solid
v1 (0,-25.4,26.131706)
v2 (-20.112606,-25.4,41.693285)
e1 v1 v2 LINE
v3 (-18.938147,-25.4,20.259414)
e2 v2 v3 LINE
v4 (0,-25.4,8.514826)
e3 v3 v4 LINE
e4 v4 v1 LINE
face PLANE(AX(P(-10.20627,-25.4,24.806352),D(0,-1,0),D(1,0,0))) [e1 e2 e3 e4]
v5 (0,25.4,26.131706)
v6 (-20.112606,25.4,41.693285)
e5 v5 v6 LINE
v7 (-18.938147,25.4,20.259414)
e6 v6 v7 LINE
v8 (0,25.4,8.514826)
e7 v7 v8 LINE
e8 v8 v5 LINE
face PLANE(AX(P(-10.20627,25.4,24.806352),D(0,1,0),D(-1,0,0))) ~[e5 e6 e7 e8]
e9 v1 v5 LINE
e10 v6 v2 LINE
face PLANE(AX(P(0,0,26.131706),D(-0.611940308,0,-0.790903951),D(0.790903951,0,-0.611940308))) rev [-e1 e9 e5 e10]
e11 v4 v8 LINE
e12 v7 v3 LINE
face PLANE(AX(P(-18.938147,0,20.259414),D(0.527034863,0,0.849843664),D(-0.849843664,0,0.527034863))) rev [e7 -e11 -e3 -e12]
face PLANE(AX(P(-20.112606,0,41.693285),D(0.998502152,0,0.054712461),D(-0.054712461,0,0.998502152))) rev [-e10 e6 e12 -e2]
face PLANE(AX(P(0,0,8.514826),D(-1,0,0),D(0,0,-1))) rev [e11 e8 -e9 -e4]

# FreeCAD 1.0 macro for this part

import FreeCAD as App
import Part
import Sketcher

V = App.Vector
Q = App.Units.Quantity

doc = App.newDocument("Part")
body = doc.addObject("PartDesign::Body", "Body")

# Sketch on XZ plane
sketch1 = body.newObject("Sketcher::SketchObject", "Sketch")
sketch1.AttachmentSupport = (doc.getObject("XZ_Plane"), [""])
sketch1.MapMode = "FlatFace"
sketch1.addGeometry([
    Part.LineSegment(V(0, 26.131706, 0), V(-20.112606, 41.693285, 0)),
    Part.LineSegment(V(-20.112606, 41.693285, 0), V(-18.938147, 20.259414, 0)),
    Part.LineSegment(V(-18.938147, 20.259414, 0), V(0, 8.514826, 0)),
    Part.LineSegment(V(0, 8.514826, 0), V(0, 26.131706, 0)),
], False)
sketch1.addConstraint([
    Sketcher.Constraint("Coincident", 0, 2, 1, 1),
    Sketcher.Constraint("Coincident", 1, 2, 2, 1),
    Sketcher.Constraint("Coincident", 2, 2, 3, 1),
    Sketcher.Constraint("Coincident", 3, 2, 0, 1),
    Sketcher.Constraint("Vertical", 3),
    Sketcher.Constraint("PointOnObject", 2, 2, -2),
    Sketcher.Constraint("DistanceY", 3, 1, 3, 2, 17.61688),
    Sketcher.Constraint("Distance", 2, 22.284272),
    Sketcher.Constraint("DistanceX", 0, 2, 1, 2, 1.174459),
    Sketcher.Constraint("DistanceY", 1, 2, 0, 2, 21.433871),
    Sketcher.Constraint("DistanceY", 2, 2, 0, 2, 33.178459),
    Sketcher.Constraint("DistanceY", -1, 1, 0, 2, 41.693285),
])
pad1 = body.newObject("PartDesign::Pad", "Pad")
pad1.Profile = sketch1
pad1.Length = Q("1 in")
body2 = doc.addObject("PartDesign::Body", "Body001")
doc.recompute()

body2.BaseFeature = body
doc.recompute()

mirroring = doc.addObject("Part::Mirroring", "Mirroring")
mirroring.Source = body
mirroring.Base = V(0, 0, 0)
mirroring.Normal = V(0, -1, 0)
body3 = doc.addObject("PartDesign::Body", "Body002")
body3.BaseFeature = mirroring
boolean = body2.newObject("PartDesign::Boolean", "Boolean")
boolean.Type = "Fuse"
boolean.addObjects([body3])
doc.recompute()
mirroring.Visibility = False

doc.recompute()
